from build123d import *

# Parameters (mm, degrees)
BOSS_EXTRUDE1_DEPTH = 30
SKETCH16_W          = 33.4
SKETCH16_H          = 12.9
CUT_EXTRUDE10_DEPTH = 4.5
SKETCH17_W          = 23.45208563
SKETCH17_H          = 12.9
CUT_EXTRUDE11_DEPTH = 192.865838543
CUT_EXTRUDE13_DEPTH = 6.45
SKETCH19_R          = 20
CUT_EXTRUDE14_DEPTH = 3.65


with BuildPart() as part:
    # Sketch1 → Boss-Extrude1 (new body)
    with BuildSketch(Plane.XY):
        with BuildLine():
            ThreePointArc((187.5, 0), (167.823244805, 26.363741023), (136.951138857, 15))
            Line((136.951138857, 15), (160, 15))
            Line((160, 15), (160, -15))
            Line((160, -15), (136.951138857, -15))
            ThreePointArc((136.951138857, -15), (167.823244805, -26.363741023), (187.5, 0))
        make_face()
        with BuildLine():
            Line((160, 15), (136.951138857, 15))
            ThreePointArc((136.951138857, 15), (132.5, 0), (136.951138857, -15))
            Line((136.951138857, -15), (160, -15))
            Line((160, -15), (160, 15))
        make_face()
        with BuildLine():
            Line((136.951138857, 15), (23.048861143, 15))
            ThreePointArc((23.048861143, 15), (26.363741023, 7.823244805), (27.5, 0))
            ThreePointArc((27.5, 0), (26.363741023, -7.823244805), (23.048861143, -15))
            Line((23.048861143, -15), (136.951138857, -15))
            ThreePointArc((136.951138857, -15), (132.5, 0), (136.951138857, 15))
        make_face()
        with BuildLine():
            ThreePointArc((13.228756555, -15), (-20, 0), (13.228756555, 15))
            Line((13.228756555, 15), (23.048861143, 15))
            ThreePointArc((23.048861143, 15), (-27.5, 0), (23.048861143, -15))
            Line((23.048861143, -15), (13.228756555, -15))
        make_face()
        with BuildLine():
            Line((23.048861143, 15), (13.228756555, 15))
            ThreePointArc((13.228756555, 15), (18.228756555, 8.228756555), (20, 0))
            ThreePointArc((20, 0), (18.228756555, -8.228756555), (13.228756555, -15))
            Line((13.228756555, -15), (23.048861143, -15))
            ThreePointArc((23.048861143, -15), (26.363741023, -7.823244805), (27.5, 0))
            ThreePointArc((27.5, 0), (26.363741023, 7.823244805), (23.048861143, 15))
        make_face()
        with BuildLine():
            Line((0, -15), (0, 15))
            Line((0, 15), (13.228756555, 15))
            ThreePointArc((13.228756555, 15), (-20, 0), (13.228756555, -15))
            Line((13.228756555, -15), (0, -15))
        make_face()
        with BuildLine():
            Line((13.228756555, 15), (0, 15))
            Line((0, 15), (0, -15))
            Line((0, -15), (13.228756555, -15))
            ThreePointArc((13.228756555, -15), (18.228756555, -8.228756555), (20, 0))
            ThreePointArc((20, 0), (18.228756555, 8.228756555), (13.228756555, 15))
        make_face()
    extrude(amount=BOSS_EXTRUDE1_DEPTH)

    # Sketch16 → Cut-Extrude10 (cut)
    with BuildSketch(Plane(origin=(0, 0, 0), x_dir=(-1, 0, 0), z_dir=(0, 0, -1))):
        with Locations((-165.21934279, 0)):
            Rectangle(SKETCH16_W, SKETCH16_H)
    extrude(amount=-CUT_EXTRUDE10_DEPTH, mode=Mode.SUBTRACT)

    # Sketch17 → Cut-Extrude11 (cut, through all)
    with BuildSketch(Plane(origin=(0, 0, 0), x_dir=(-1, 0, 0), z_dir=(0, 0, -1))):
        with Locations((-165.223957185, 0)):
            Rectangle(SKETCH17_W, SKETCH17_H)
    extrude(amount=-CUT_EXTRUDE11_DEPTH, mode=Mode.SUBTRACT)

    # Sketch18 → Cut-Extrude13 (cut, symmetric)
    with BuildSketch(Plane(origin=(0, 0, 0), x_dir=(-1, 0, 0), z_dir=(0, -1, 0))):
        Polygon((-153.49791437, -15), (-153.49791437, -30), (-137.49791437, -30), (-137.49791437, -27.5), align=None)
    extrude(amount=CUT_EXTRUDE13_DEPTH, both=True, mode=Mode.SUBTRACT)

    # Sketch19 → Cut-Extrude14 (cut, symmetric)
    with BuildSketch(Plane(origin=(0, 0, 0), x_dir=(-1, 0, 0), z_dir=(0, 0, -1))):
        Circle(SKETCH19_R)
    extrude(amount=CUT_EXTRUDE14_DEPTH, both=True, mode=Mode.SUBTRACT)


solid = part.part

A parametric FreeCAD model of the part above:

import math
import FreeCAD as App
import Part
import Sketcher

V = App.Vector

doc = App.newDocument("Part")
body = doc.addObject("PartDesign::Body", "Body")

sketch1 = body.newObject("Sketcher::SketchObject", "Sketch")
sketch1.AttachmentSupport = (doc.getObject("XY_Plane"), [""])
sketch1.MapMode = "FlatFace"
sketch1.addGeometry(Part.LineSegment(V(23.048861, -15, 0), V(136.951139, -15, 0)), False)
sketch1.addGeometry(Part.ArcOfCircle(Part.Circle(V(160, 0, 0), V(0, 0, 1), 27.5), math.radians(-146.944269), math.radians(0)), False)
sketch1.addGeometry(Part.ArcOfCircle(Part.Circle(V(160, 0, 0), V(0, 0, 1), 27.5), math.radians(0), math.radians(146.944269)), False)
sketch1.addGeometry(Part.LineSegment(V(136.951139, 15, 0), V(23.048861, 15, 0)), False)
sketch1.addGeometry(Part.ArcOfCircle(Part.Circle(V(0, 0, 0), V(0, 0, 1), 27.5), math.radians(33.055731), math.radians(326.944269)), False)
sketch1.addConstraint(Sketcher.Constraint("Coincident", 0, 2, 1, 1))
sketch1.addConstraint(Sketcher.Constraint("Tangent", 1, 2, 2, 1))
sketch1.addConstraint(Sketcher.Constraint("Coincident", 2, 2, 3, 1))
sketch1.addConstraint(Sketcher.Constraint("Coincident", 3, 2, 4, 1))
sketch1.addConstraint(Sketcher.Constraint("Coincident", 4, 2, 0, 1))
sketch1.addConstraint(Sketcher.Constraint("Horizontal", 0))
sketch1.addConstraint(Sketcher.Constraint("Horizontal", 3))
sketch1.addConstraint(Sketcher.Constraint("Coincident", 4, 3, -1, 1))
sketch1.addConstraint(Sketcher.Constraint("Equal", 1, 2))
sketch1.addConstraint(Sketcher.Constraint("Equal", 2, 4))
sketch1.addConstraint(Sketcher.Constraint("Symmetric", 0, 2, 2, 2, -1))
sketch1.addConstraint(Sketcher.Constraint("PointOnObject", 1, 2, -1))
sketch1.addConstraint(Sketcher.Constraint("Radius", 1, 27.5))
sketch1.addConstraint(Sketcher.Constraint("DistanceX", -1, 1, 1, 3, 160.0))
sketch1.addConstraint(Sketcher.Constraint("DistanceY", 0, 2, -1, 1, 15.0))
pad1 = body.newObject("PartDesign::Pad", "Pad")
pad1.Profile = sketch1
pad1.Length = 30

sketch2 = body.newObject("Sketcher::SketchObject", "Sketch001")
sketch2.AttachmentSupport = (doc.getObject("XY_Plane"), [""])
sketch2.MapMode = "FlatFace"
sketch2.addGeometry(Part.LineSegment(V(181.919343, 6.45, 0), V(181.919343, -6.45, 0)), False)
sketch2.addGeometry(Part.LineSegment(V(181.919343, -6.45, 0), V(148.519343, -6.45, 0)), False)
sketch2.addGeometry(Part.LineSegment(V(148.519343, -6.45, 0), V(148.519343, 6.45, 0)), False)
sketch2.addGeometry(Part.LineSegment(V(148.519343, 6.45, 0), V(181.919343, 6.45, 0)), False)
sketch2.addConstraint(Sketcher.Constraint("Coincident", 0, 2, 1, 1))
sketch2.addConstraint(Sketcher.Constraint("Coincident", 1, 2, 2, 1))
sketch2.addConstraint(Sketcher.Constraint("Coincident", 2, 2, 3, 1))
sketch2.addConstraint(Sketcher.Constraint("Coincident", 3, 2, 0, 1))
sketch2.addConstraint(Sketcher.Constraint("Vertical", 0))
sketch2.addConstraint(Sketcher.Constraint("Horizontal", 1))
sketch2.addConstraint(Sketcher.Constraint("Vertical", 2))
sketch2.addConstraint(Sketcher.Constraint("Horizontal", 3))
sketch2.addConstraint(Sketcher.Constraint("DistanceX", 1, 2, 1, 1, 33.4))
sketch2.addConstraint(Sketcher.Constraint("DistanceY", 0, 2, 0, 1, 12.9))
sketch2.addConstraint(Sketcher.Constraint("DistanceY", 0, 2, -1, 1, 6.45))
sketch2.addConstraint(Sketcher.Constraint("DistanceX", -1, 1, 0, 2, 181.919343))
pocket1 = body.newObject("PartDesign::Pocket", "Pocket")
pocket1.Profile = sketch2
pocket1.Length = 4.5
pocket1.Reversed = True

sketch3 = body.newObject("Sketcher::SketchObject", "Sketch002")
sketch3.AttachmentSupport = (doc.getObject("XY_Plane"), [""])
sketch3.MapMode = "FlatFace"
sketch3.addGeometry(Part.LineSegment(V(176.95, 6.45, 0), V(176.95, -6.45, 0)), False)
sketch3.addGeometry(Part.LineSegment(V(176.95, -6.45, 0), V(153.497914, -6.45, 0)), False)
sketch3.addGeometry(Part.LineSegment(V(153.497914, -6.45, 0), V(153.497914, 6.45, 0)), False)
sketch3.addGeometry(Part.LineSegment(V(153.497914, 6.45, 0), V(176.95, 6.45, 0)), False)
sketch3.addConstraint(Sketcher.Constraint("Coincident", 0, 2, 1, 1))
sketch3.addConstraint(Sketcher.Constraint("Coincident", 1, 2, 2, 1))
sketch3.addConstraint(Sketcher.Constraint("Coincident", 2, 2, 3, 1))
sketch3.addConstraint(Sketcher.Constraint("Coincident", 3, 2, 0, 1))
sketch3.addConstraint(Sketcher.Constraint("Vertical", 0))
sketch3.addConstraint(Sketcher.Constraint("Horizontal", 1))
sketch3.addConstraint(Sketcher.Constraint("Vertical", 2))
sketch3.addConstraint(Sketcher.Constraint("Horizontal", 3))
sketch3.addConstraint(Sketcher.Constraint("DistanceY", 0, 2, 0, 1, 12.9))
sketch3.addConstraint(Sketcher.Constraint("DistanceX", -1, 1, 0, 2, 176.95))
sketch3.addConstraint(Sketcher.Constraint("DistanceY", 0, 2, -1, 1, 6.45))
sketch3.addConstraint(Sketcher.Constraint("DistanceX", 1, 2, 1, 1, 23.452086))
pocket2 = body.newObject("PartDesign::Pocket", "Pocket001")
pocket2.Profile = sketch3
pocket2.Type = "ThroughAll"
pocket2.Reversed = True

sketch4 = body.newObject("Sketcher::SketchObject", "Sketch003")
sketch4.AttachmentSupport = (doc.getObject("XZ_Plane"), [""])
sketch4.MapMode = "FlatFace"
sketch4.addGeometry(Part.LineSegment(V(153.497914, 15, 0), V(153.497914, 30, 0)), False)
sketch4.addGeometry(Part.LineSegment(V(153.497914, 30, 0), V(137.497914, 30, 0)), False)
sketch4.addGeometry(Part.LineSegment(V(137.497914, 30, 0), V(137.497914, 27.5, 0)), False)
sketch4.addGeometry(Part.LineSegment(V(137.497914, 27.5, 0), V(153.497914, 15, 0)), False)
sketch4.addConstraint(Sketcher.Constraint("Coincident", 0, 2, 1, 1))
sketch4.addConstraint(Sketcher.Constraint("Coincident", 1, 2, 2, 1))
sketch4.addConstraint(Sketcher.Constraint("Coincident", 2, 2, 3, 1))
sketch4.addConstraint(Sketcher.Constraint("Coincident", 3, 2, 0, 1))
sketch4.addConstraint(Sketcher.Constraint("Vertical", 0))
sketch4.addConstraint(Sketcher.Constraint("Horizontal", 1))
sketch4.addConstraint(Sketcher.Constraint("Vertical", 2))
sketch4.addConstraint(Sketcher.Constraint("DistanceX", 1, 2, 1, 1, 16.0))
sketch4.addConstraint(Sketcher.Constraint("DistanceY", 0, 1, 0, 2, 15.0))
sketch4.addConstraint(Sketcher.Constraint("DistanceY", 2, 2, 2, 1, 2.5))
sketch4.addConstraint(Sketcher.Constraint("DistanceY", -1, 1, 0, 2, 30.0))
sketch4.addConstraint(Sketcher.Constraint("DistanceX", -1, 1, 0, 2, 153.497914))
pocket3 = body.newObject("PartDesign::Pocket", "Pocket002")
pocket3.Profile = sketch4
pocket3.Length = 12.9
pocket3.Midplane = True

sketch5 = body.newObject("Sketcher::SketchObject", "Sketch004")
sketch5.AttachmentSupport = (doc.getObject("XY_Plane"), [""])
sketch5.MapMode = "FlatFace"
sketch5.addGeometry(Part.Circle(V(0, 0, 0), V(0, 0, 1), 20), False)
sketch5.addConstraint(Sketcher.Constraint("Coincident", 0, 3, -1, 1))
sketch5.addConstraint(Sketcher.Constraint("Diameter", 0, 40.0))
pocket4 = body.newObject("PartDesign::Pocket", "Pocket003")
pocket4.Profile = sketch5
pocket4.Length = 7.3
pocket4.Midplane = True

doc.recompute()
